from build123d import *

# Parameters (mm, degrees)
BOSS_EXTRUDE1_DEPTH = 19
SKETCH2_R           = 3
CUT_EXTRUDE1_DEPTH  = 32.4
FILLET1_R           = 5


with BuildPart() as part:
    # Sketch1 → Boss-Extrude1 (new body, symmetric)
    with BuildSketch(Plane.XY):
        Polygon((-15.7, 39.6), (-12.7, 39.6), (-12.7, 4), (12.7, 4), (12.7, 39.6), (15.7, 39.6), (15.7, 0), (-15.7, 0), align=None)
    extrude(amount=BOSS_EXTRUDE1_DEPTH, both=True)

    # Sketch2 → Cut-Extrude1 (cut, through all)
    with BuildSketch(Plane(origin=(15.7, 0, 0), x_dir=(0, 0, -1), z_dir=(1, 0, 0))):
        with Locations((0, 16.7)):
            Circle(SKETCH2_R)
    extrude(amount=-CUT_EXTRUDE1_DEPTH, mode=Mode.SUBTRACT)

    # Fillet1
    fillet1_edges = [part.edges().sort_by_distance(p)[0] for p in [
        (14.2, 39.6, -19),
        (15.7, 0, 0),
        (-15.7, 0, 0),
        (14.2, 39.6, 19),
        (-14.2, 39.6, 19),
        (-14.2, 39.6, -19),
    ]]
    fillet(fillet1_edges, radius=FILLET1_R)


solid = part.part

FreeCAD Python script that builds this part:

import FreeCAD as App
import Part
import Sketcher

V = App.Vector
Q = App.Units.Quantity


def edges_at(feature, points):
    """Names of the edges that pass closest to the given points."""
    edges = feature.Shape.Edges
    near = lambda p: min(range(len(edges)), key=lambda i: edges[i].distToShape(Part.Vertex(*p))[0])
    return sorted({f"Edge{near(p) + 1}" for p in points})


def add_polygon(sketch, points):
    """Adds a closed chain of lines whose ends are joined by coincident constraints."""
    first, n = sketch.GeometryCount, len(points)
    for a, b in zip(points, points[1:] + points[:1]):
        sketch.addGeometry(Part.LineSegment(App.Vector(*a, 0), App.Vector(*b, 0)), False)
    for i in range(n):
        sketch.addConstraint(Sketcher.Constraint("Coincident", first + i, 2, first + (i + 1) % n, 1))

doc = App.newDocument("Part")
body = doc.addObject("PartDesign::Body", "Body")

sketch1 = body.newObject("Sketcher::SketchObject", "Sketch")
sketch1.AttachmentSupport = (doc.getObject("XY_Plane"), [""])
sketch1.MapMode = "FlatFace"
add_polygon(sketch1, [(-12.7, 39.6), (-15.7, 39.6), (-15.7, 0), (15.7, 0), (15.7, 39.6), (12.7, 39.6), (12.7, 4), (-12.7, 4)])
sketch1.addConstraint(Sketcher.Constraint("Horizontal", 0))
sketch1.addConstraint(Sketcher.Constraint("Vertical", 1))
sketch1.addConstraint(Sketcher.Constraint("Horizontal", 2))
sketch1.addConstraint(Sketcher.Constraint("Vertical", 3))
sketch1.addConstraint(Sketcher.Constraint("Horizontal", 4))
sketch1.addConstraint(Sketcher.Constraint("Vertical", 5))
sketch1.addConstraint(Sketcher.Constraint("Horizontal", 6))
sketch1.addConstraint(Sketcher.Constraint("Vertical", 7))
sketch1.addConstraint(Sketcher.Constraint("Symmetric", 1, 2, 2, 2, -1, 1))
sketch1.addConstraint(Sketcher.Constraint("Symmetric", 4, 2, 7, 2, -2))
sketch1.addConstraint(Sketcher.Constraint("DistanceX", 0, 2, 0, 1, Q("3 mm")))
sketch1.addConstraint(Sketcher.Constraint("DistanceX", 2, 1, 2, 2, Q("31.4 mm")))
sketch1.addConstraint(Sketcher.Constraint("DistanceY", 1, 2, 1, 1, Q("39.6 mm")))
sketch1.addConstraint(Sketcher.Constraint("DistanceY", 5, 2, 5, 1, Q("35.6 mm")))
pad1 = body.newObject("PartDesign::Pad", "Pad")
pad1.Profile = sketch1
pad1.Length = 38
pad1.Midplane = True

sketch2 = body.newObject("Sketcher::SketchObject", "Sketch001")
sketch2.AttachmentSupport = (doc.getObject("YZ_Plane"), [""])
sketch2.MapMode = "FlatFace"
sketch2.AttachmentOffset = App.Placement(V(0, 0, 15.7), App.Rotation())
sketch2.addGeometry(Part.Circle(V(16.7, 0, 0), V(0, 0, 1), 3), False)
sketch2.addConstraint(Sketcher.Constraint("PointOnObject", 0, 3, -1))
sketch2.addConstraint(Sketcher.Constraint("Diameter", 0, Q("6 mm")))
sketch2.addConstraint(Sketcher.Constraint("DistanceX", -1, 1, 0, 3, Q("16.7 mm")))
pocket1 = body.newObject("PartDesign::Pocket", "Pocket")
pocket1.Profile = sketch2
pocket1.Type = "ThroughAll"
doc.recompute()

fillet = body.newObject("PartDesign::Fillet", "Fillet")
fillet.Base = (pocket1, edges_at(pocket1, [
    (14.2, 39.6, -19),
    (15.7, 0, 0),
    (-15.7, 0, 0),
    (14.2, 39.6, 19),
    (-14.2, 39.6, 19),
    (-14.2, 39.6, -19),
]))
fillet.Radius = 5

doc.recompute()
